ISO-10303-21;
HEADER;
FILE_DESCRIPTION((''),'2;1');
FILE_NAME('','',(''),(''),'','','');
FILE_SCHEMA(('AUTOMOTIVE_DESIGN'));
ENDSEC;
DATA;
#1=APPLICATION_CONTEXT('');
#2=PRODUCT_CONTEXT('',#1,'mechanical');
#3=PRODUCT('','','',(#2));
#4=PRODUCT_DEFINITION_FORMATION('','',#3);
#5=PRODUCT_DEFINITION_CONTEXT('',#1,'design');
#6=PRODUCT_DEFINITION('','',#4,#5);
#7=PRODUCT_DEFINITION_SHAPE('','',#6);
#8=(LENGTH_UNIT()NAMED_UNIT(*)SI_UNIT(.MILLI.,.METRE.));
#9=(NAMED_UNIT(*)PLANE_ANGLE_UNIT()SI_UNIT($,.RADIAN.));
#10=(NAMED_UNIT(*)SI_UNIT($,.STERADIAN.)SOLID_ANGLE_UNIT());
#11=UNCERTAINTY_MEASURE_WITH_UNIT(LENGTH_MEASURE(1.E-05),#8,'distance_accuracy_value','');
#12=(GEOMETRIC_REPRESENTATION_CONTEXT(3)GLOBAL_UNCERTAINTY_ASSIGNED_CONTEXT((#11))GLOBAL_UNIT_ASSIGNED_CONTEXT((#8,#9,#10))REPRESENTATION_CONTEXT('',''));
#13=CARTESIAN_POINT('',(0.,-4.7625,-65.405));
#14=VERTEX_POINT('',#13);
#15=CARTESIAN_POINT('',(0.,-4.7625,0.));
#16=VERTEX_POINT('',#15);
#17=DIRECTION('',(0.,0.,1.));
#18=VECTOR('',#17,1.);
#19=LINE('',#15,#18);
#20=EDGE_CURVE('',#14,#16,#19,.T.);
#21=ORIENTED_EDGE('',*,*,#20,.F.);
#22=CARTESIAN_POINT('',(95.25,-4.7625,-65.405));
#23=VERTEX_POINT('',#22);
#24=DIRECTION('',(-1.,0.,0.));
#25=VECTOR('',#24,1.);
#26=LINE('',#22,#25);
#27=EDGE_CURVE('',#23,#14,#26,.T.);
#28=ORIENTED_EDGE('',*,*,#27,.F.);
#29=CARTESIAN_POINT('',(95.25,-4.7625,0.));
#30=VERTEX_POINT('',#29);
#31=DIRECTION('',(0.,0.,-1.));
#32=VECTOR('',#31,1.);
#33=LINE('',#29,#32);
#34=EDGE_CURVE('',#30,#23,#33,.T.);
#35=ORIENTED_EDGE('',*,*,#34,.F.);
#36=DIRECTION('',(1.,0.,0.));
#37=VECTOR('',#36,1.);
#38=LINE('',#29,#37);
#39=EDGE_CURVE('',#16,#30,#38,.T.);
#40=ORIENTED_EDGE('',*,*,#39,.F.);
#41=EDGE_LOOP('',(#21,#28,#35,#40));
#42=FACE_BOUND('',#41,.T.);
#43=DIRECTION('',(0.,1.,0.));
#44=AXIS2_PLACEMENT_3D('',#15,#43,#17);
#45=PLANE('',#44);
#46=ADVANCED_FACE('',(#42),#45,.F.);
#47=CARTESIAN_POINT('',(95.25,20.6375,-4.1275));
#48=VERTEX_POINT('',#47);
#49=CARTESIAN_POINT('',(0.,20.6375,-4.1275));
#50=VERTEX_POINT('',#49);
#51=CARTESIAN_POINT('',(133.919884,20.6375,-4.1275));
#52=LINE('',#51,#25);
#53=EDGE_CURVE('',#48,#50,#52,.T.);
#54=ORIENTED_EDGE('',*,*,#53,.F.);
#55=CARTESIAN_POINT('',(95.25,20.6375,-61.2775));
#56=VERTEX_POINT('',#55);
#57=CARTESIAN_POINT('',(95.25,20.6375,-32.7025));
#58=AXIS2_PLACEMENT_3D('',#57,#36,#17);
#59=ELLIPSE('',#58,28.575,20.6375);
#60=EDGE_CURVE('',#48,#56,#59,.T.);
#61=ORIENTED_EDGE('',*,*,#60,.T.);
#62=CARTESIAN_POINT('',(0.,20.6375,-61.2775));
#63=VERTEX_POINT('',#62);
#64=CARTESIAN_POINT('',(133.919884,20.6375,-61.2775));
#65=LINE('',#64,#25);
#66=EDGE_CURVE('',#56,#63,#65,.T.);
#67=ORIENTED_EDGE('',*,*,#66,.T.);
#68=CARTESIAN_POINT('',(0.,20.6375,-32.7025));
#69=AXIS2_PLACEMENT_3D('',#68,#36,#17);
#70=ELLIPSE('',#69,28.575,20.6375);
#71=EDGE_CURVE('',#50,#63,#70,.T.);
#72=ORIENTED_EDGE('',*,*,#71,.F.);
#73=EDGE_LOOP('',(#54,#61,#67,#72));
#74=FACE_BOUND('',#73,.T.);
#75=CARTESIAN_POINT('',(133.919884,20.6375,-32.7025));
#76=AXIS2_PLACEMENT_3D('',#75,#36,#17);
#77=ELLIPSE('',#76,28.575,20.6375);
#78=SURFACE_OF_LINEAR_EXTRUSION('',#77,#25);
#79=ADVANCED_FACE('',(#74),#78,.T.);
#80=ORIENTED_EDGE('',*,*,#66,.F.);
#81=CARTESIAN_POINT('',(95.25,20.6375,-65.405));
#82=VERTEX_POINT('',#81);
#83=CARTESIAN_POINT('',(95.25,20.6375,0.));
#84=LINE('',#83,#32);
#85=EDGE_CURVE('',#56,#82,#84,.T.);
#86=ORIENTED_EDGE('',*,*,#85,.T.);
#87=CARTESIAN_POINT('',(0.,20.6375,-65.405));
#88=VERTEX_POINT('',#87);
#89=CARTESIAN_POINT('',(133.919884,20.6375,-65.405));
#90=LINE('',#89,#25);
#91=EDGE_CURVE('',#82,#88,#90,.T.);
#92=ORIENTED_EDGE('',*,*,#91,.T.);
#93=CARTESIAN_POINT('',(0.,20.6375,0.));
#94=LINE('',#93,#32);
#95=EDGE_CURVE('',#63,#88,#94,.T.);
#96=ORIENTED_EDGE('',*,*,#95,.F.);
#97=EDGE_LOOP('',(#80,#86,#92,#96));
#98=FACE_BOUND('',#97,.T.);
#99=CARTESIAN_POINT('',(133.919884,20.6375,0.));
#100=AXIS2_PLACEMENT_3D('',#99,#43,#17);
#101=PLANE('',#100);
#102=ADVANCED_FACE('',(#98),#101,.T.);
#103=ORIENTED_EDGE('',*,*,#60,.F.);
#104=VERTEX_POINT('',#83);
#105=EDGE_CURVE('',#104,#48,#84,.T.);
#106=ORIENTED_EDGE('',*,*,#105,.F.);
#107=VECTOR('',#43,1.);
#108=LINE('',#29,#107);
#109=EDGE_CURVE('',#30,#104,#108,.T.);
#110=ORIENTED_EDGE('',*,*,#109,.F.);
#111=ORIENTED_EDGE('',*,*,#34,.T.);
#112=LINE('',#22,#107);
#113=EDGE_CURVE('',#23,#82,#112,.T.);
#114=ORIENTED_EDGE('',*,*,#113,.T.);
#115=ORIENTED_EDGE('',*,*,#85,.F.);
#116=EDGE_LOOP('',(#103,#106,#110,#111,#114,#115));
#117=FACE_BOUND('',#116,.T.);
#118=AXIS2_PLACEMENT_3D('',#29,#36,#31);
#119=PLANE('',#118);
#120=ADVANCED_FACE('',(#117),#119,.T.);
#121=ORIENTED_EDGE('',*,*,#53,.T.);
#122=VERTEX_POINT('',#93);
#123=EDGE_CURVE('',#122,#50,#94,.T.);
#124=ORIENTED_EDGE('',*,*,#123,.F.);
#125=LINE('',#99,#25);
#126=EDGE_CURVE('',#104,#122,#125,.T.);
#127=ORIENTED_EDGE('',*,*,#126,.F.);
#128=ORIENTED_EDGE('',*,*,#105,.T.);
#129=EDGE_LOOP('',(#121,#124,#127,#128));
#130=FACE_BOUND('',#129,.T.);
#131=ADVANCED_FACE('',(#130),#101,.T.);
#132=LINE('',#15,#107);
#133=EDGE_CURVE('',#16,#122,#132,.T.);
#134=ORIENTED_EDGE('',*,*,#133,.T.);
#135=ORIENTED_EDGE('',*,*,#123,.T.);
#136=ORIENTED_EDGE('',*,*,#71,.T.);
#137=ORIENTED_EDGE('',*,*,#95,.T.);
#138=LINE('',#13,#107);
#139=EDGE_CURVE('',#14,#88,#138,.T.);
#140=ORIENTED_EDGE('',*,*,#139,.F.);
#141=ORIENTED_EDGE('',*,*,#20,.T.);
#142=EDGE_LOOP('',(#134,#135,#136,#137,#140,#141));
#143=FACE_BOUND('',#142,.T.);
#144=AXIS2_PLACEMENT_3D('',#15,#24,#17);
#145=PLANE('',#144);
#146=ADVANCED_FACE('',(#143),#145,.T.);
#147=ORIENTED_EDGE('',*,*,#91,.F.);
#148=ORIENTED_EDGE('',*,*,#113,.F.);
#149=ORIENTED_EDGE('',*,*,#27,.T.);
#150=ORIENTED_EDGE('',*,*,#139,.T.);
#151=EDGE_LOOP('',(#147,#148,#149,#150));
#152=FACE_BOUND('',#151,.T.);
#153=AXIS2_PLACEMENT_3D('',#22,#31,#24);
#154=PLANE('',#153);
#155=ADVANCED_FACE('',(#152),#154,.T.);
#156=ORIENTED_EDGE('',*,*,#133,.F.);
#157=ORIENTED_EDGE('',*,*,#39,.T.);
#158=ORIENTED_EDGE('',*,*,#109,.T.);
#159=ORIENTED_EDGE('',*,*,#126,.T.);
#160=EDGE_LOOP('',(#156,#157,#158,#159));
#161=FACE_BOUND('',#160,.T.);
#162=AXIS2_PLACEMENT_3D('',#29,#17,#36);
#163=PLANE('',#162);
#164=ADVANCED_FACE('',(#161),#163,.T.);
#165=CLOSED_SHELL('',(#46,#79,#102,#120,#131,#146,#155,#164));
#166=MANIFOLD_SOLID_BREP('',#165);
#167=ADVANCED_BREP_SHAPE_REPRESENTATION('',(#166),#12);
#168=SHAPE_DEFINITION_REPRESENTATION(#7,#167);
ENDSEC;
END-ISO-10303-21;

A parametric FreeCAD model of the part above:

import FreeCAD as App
import Part
import Sketcher
Q = App.Units.Quantity


def add_polygon(sketch, points):
    """Adds a closed chain of lines whose ends are joined by coincident constraints."""
    first, n = sketch.GeometryCount, len(points)
    for a, b in zip(points, points[1:] + points[:1]):
        sketch.addGeometry(Part.LineSegment(App.Vector(*a, 0), App.Vector(*b, 0)), False)
    for i in range(n):
        sketch.addConstraint(Sketcher.Constraint("Coincident", first + i, 2, first + (i + 1) % n, 1))

doc = App.newDocument("Part")
params = doc.addObject("Spreadsheet::Sheet", "Params")
for row, (alias, value) in enumerate([
    ("sketch1_width", "3.75 in"),
    ("sketch1_height", "2.575 in"),
    ("pad1_length", "0.1875 in"),
    ("pad2_length", "3.75 in"),
], start=1):
    params.set(f"A{row}", alias)
    params.set(f"B{row}", "=" + value)
    params.setAlias(f"B{row}", alias)

body = doc.addObject("PartDesign::Body", "Body")

# Sketch on XZ plane
sketch1 = doc.addObject("Sketcher::SketchObject", "Sketch")
body.addObject(sketch1)
sketch1.AttachmentSupport = (doc.XZ_Plane, [""])
sketch1.MapMode = "FlatFace"
add_polygon(sketch1, [(0, -65), (0, 0), (95, 0), (95, -65)])  # lines 0-3
sketch1.addConstraint([
    Sketcher.Constraint("Vertical", 0),
    Sketcher.Constraint("Horizontal", 1),
    Sketcher.Constraint("Vertical", 2),
    Sketcher.Constraint("Horizontal", 3),
    Sketcher.Constraint("Coincident", 0, 2, -1, 1),
    Sketcher.Constraint("DistanceX", 1, 1, 1, 2, Q("3.75 in")),
    Sketcher.Constraint("DistanceY", 0, 1, 0, 2, Q("2.575 in")),
])
sketch1.setExpression("Constraints[9]", "Params.sketch1_width")
sketch1.setExpression("Constraints[10]", "Params.sketch1_height")
pad1 = doc.addObject("PartDesign::Pad", "Pad")
body.addObject(pad1)
pad1.Profile = sketch1
pad1.setExpression("Length", "Params.pad1_length")

# Sketch on YZ plane
sketch2 = doc.addObject("Sketcher::SketchObject", "Sketch001")
body.addObject(sketch2)
sketch2.AttachmentSupport = (doc.YZ_Plane, [""])
sketch2.MapMode = "FlatFace"
sketch2.addGeometry([
    Part.LineSegment(App.Vector(20.6375, 0, 0), App.Vector(0, 0, 0)),  # 0
    Part.LineSegment(App.Vector(0, 0, 0), App.Vector(0, -32.7025, 0)),  # 1
    Part.BSplineCurve([App.Vector(20.6375, -4.1275, 0), App.Vector(0, -4.1275, 0), App.Vector(0, -32.7025, 0)], [3, 3], [0, 1.570796327], False, 2, [1, 0.707106781, 1], False),  # 2
    Part.LineSegment(App.Vector(20.6375, -4.1275, 0), App.Vector(20.6375, 0, 0)),  # 3
    Part.BSplineCurve([App.Vector(0, -32.7025, 0), App.Vector(0, -61.2775, 0), App.Vector(20.6375, -61.2775, 0)], [3, 3], [1.570796327, 3.141592654], False, 2, [1, 0.707106781, 1], False),  # 4
    Part.LineSegment(App.Vector(0, -32.7025, 0), App.Vector(0, -65.405, 0)),  # 5
    Part.LineSegment(App.Vector(0, -65.405, 0), App.Vector(20.6375, -65.405, 0)),  # 6
    Part.LineSegment(App.Vector(20.6375, -65.405, 0), App.Vector(20.6375, -61.2775, 0)),  # 7
], False)
sketch2.addConstraint([
    Sketcher.Constraint("Block", 2),
    Sketcher.Constraint("Block", 4),
    Sketcher.Constraint("Coincident", 0, 2, 1, 1),
    Sketcher.Constraint("Coincident", 1, 2, 2, 2),
    Sketcher.Constraint("Coincident", 2, 1, 3, 1),
    Sketcher.Constraint("Coincident", 3, 2, 0, 1),
    Sketcher.Constraint("Coincident", 4, 1, 5, 1),
    Sketcher.Constraint("Coincident", 5, 2, 6, 1),
    Sketcher.Constraint("Coincident", 6, 2, 7, 1),
    Sketcher.Constraint("Coincident", 7, 2, 4, 2),
    Sketcher.Constraint("Horizontal", 0),
    Sketcher.Constraint("Vertical", 1),
    Sketcher.Constraint("Vertical", 3),
    Sketcher.Constraint("Vertical", 5),
    Sketcher.Constraint("Horizontal", 6),
    Sketcher.Constraint("Vertical", 7),
    Sketcher.Constraint("PointOnObject", 3, 2, -1),
    Sketcher.Constraint("Equal", 1, 5),
])
pad2 = doc.addObject("PartDesign::Pad", "Pad001")
body.addObject(pad2)
pad2.Profile = sketch2
pad2.setExpression("Length", "Params.pad2_length")

doc.recompute()
